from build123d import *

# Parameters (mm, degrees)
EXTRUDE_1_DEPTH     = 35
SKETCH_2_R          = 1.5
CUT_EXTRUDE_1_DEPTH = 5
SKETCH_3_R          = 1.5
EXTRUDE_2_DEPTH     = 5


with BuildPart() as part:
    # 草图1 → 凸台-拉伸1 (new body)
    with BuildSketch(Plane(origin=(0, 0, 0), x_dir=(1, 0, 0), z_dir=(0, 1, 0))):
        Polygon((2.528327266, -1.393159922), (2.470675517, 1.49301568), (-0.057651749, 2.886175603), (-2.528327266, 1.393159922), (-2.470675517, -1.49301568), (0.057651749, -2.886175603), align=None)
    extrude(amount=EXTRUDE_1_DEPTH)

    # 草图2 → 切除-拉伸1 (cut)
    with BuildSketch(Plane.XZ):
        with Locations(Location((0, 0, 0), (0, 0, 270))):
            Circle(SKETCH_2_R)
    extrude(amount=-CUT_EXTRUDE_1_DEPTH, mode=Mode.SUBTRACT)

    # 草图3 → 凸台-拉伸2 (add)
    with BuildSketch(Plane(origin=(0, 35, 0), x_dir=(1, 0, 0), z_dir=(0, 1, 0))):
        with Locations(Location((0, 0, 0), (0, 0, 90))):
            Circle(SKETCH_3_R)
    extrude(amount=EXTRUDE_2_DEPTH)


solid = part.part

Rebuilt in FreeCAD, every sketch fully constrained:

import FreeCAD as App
import Part
import Sketcher
Q = App.Units.Quantity

doc = App.newDocument("Part")
body = doc.addObject("PartDesign::Body", "Body")

# Sketch on XZ plane
sketch1 = body.newObject("Sketcher::SketchObject", "Sketch")
sketch1.AttachmentSupport = (doc.getObject("XZ_Plane"), [""])
sketch1.MapMode = "FlatFace"
sketch1.addGeometry([
    Part.LineSegment(App.Vector(2.5, 1.4, 0), App.Vector(2.5, -1.5, 0)),  # 0
    Part.LineSegment(App.Vector(2.5, -1.5, 0), App.Vector(-0.1, -2.9, 0)),  # 1
    Part.LineSegment(App.Vector(-0.1, -2.9, 0), App.Vector(-2.5, -1.4, 0)),  # 2
    Part.LineSegment(App.Vector(-2.5, -1.4, 0), App.Vector(-2.5, 1.5, 0)),  # 3
    Part.LineSegment(App.Vector(-2.5, 1.5, 0), App.Vector(0.1, 2.9, 0)),  # 4
    Part.LineSegment(App.Vector(0.1, 2.9, 0), App.Vector(2.5, 1.4, 0)),  # 5
], False)
sketch1.addConstraint([
    Sketcher.Constraint("Coincident", 0, 2, 1, 1),
    Sketcher.Constraint("Coincident", 1, 2, 2, 1),
    Sketcher.Constraint("Coincident", 2, 2, 3, 1),
    Sketcher.Constraint("Coincident", 3, 2, 4, 1),
    Sketcher.Constraint("Coincident", 4, 2, 5, 1),
    Sketcher.Constraint("Coincident", 5, 2, 0, 1),
    Sketcher.Constraint("Symmetric", 0, 2, 3, 2, -1, 1),
    Sketcher.Constraint("Symmetric", 1, 2, 4, 2, -1, 1),
    Sketcher.Constraint("Symmetric", 2, 2, 5, 2, -1, 1),
    Sketcher.Constraint("Equal", 0, 1),
    Sketcher.Constraint("Equal", 1, 2),
    Sketcher.Constraint("Distance", 0, Q("2.886751 mm")),
    Sketcher.Constraint("DistanceX", 1, 2, -1, 1, Q("0.057652 mm")),
    Sketcher.Constraint("DistanceY", 2, 2, -1, 1, Q("1.39316 mm")),
    Sketcher.Constraint("DistanceY", 1, 2, 0, 2, Q("1.39316 mm")),
])
pad1 = body.newObject("PartDesign::Pad", "Pad")
pad1.Profile = sketch1
pad1.Length = 35
pad1.Reversed = True

# Sketch on XZ plane
sketch2 = body.newObject("Sketcher::SketchObject", "Sketch001")
sketch2.AttachmentSupport = (doc.getObject("XZ_Plane"), [""])
sketch2.MapMode = "FlatFace"
sketch2.addGeometry(Part.Circle(App.Vector(0, 0, 0), App.Vector(0, 0, 1), 1.5), False)
sketch2.addConstraint([
    Sketcher.Constraint("Coincident", 0, 3, -1, 1),
    Sketcher.Constraint("Diameter", 0, Q("3 mm")),
])
pocket1 = body.newObject("PartDesign::Pocket", "Pocket")
pocket1.Profile = sketch2
pocket1.Length = 5

# Sketch on XZ plane
sketch3 = body.newObject("Sketcher::SketchObject", "Sketch002")
sketch3.AttachmentSupport = (doc.getObject("XZ_Plane"), [""])
sketch3.MapMode = "FlatFace"
sketch3.AttachmentOffset = App.Placement(App.Vector(0, 0, -35), App.Rotation())
sketch3.addGeometry(Part.Circle(App.Vector(0, 0, 0), App.Vector(0, 0, 1), 1.5), False)
sketch3.addConstraint([
    Sketcher.Constraint("Coincident", 0, 3, -1, 1),
    Sketcher.Constraint("Diameter", 0, Q("3 mm")),
])
pad2 = body.newObject("PartDesign::Pad", "Pad001")
pad2.Profile = sketch3
pad2.Length = 5
pad2.Reversed = True

doc.recompute()
